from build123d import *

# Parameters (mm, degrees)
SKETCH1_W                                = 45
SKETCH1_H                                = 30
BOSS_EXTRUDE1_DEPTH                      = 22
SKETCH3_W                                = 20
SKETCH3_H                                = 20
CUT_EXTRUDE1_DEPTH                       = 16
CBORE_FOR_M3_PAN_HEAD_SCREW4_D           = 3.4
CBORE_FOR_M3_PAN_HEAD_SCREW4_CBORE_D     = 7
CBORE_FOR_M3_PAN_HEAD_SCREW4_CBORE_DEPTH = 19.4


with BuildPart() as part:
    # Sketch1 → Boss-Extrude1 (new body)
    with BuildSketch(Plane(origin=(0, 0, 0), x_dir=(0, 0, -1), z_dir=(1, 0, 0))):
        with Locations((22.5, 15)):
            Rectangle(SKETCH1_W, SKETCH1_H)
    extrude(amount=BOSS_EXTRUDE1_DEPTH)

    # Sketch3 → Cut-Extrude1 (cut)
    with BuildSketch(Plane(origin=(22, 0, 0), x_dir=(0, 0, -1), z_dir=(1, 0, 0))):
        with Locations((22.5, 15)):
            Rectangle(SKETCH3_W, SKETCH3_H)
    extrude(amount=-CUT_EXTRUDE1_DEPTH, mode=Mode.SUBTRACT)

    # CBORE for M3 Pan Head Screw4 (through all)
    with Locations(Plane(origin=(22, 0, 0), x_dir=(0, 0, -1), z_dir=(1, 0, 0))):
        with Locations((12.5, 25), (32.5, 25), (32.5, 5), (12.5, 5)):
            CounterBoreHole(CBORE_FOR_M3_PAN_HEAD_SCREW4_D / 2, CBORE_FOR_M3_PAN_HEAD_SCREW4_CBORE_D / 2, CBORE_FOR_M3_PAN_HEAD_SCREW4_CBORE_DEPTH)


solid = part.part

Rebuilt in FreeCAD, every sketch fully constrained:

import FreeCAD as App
import Part
import Sketcher
Q = App.Units.Quantity


def add_polygon(sketch, points):
    """Adds a closed chain of lines whose ends are joined by coincident constraints."""
    first, n = sketch.GeometryCount, len(points)
    for a, b in zip(points, points[1:] + points[:1]):
        sketch.addGeometry(Part.LineSegment(App.Vector(*a, 0), App.Vector(*b, 0)), False)
    for i in range(n):
        sketch.addConstraint(Sketcher.Constraint("Coincident", first + i, 2, first + (i + 1) % n, 1))

doc = App.newDocument("Part")
body = doc.addObject("PartDesign::Body", "Body")

# Sketch on YZ plane
sketch1 = body.newObject("Sketcher::SketchObject", "Sketch")
sketch1.AttachmentSupport = (doc.getObject("YZ_Plane"), [""])
sketch1.MapMode = "FlatFace"
add_polygon(sketch1, [(30, 0), (0, 0), (0, -45), (30, -45)])  # lines 0-3
sketch1.addConstraint([
    Sketcher.Constraint("Horizontal", 0),
    Sketcher.Constraint("Vertical", 1),
    Sketcher.Constraint("Horizontal", 2),
    Sketcher.Constraint("Vertical", 3),
    Sketcher.Constraint("Coincident", 0, 2, -1, 1),
    Sketcher.Constraint("DistanceX", 0, 2, 0, 1, Q("30 mm")),
    Sketcher.Constraint("DistanceY", 1, 2, 1, 1, Q("45 mm")),
])
pad1 = body.newObject("PartDesign::Pad", "Pad")
pad1.Profile = sketch1
pad1.Length = 22

# Sketch on YZ plane
sketch2 = body.newObject("Sketcher::SketchObject", "Sketch001")
sketch2.AttachmentSupport = (doc.getObject("YZ_Plane"), [""])
sketch2.MapMode = "FlatFace"
sketch2.AttachmentOffset = App.Placement(App.Vector(0, 0, 22), App.Rotation())
add_polygon(sketch2, [(25, -12), (5, -12), (5, -32), (25, -32)])  # lines 0-3
sketch2.addConstraint([
    Sketcher.Constraint("Horizontal", 0),
    Sketcher.Constraint("Vertical", 1),
    Sketcher.Constraint("Horizontal", 2),
    Sketcher.Constraint("Vertical", 3),
    Sketcher.Constraint("Equal", 2, 1),
    Sketcher.Constraint("DistanceX", 0, 2, 0, 1, Q("20 mm")),
    Sketcher.Constraint("DistanceX", -1, 1, 0, 2, Q("5 mm")),
    Sketcher.Constraint("DistanceY", 0, 2, -1, 1, Q("12.5 mm")),
])
pocket1 = body.newObject("PartDesign::Pocket", "Pocket")
pocket1.Profile = sketch2
pocket1.Length = 16

# Sketch on YZ plane
sketch3 = body.newObject("Sketcher::SketchObject", "Sketch002")
sketch3.AttachmentSupport = (doc.getObject("YZ_Plane"), [""])
sketch3.MapMode = "FlatFace"
sketch3.AttachmentOffset = App.Placement(App.Vector(0, 0, 22), App.Rotation())
sketch3.addGeometry([
    Part.Circle(App.Vector(25, -12.5, 0), App.Vector(0, 0, 1), 1.7),
    Part.Circle(App.Vector(25, -32.5, 0), App.Vector(0, 0, 1), 1.7),
    Part.Circle(App.Vector(5, -32.5, 0), App.Vector(0, 0, 1), 1.7),
    Part.Circle(App.Vector(5, -12.5, 0), App.Vector(0, 0, 1), 1.7),
], False)
sketch3.addConstraint([
    Sketcher.Constraint("Equal", 0, 1),
    Sketcher.Constraint("Equal", 1, 2),
    Sketcher.Constraint("Equal", 2, 3),
    Sketcher.Constraint("Horizontal", 1, 3, 2, 3),
    Sketcher.Constraint("Horizontal", 0, 3, 3, 3),
    Sketcher.Constraint("Vertical", 0, 3, 1, 3),
    Sketcher.Constraint("Vertical", 2, 3, 3, 3),
    Sketcher.Constraint("Diameter", 0, Q("3.4 mm")),
    Sketcher.Constraint("DistanceX", -1, 1, 0, 3, Q("25 mm")),
    Sketcher.Constraint("DistanceX", -1, 1, 2, 3, Q("5 mm")),
    Sketcher.Constraint("DistanceY", 1, 3, 0, 3, Q("20 mm")),
    Sketcher.Constraint("DistanceY", 0, 3, -1, 1, Q("12.5 mm")),
])
doc.recompute()
hole = body.newObject("PartDesign::Hole", "Hole")
hole.Profile = sketch3
hole.ThreadType = "None"
hole.Diameter = 3.4
hole.DepthType = "ThroughAll"
hole.HoleCutType = "Counterbore"
hole.HoleCutDiameter = 7
hole.HoleCutDepth = 19.4

doc.recompute()
